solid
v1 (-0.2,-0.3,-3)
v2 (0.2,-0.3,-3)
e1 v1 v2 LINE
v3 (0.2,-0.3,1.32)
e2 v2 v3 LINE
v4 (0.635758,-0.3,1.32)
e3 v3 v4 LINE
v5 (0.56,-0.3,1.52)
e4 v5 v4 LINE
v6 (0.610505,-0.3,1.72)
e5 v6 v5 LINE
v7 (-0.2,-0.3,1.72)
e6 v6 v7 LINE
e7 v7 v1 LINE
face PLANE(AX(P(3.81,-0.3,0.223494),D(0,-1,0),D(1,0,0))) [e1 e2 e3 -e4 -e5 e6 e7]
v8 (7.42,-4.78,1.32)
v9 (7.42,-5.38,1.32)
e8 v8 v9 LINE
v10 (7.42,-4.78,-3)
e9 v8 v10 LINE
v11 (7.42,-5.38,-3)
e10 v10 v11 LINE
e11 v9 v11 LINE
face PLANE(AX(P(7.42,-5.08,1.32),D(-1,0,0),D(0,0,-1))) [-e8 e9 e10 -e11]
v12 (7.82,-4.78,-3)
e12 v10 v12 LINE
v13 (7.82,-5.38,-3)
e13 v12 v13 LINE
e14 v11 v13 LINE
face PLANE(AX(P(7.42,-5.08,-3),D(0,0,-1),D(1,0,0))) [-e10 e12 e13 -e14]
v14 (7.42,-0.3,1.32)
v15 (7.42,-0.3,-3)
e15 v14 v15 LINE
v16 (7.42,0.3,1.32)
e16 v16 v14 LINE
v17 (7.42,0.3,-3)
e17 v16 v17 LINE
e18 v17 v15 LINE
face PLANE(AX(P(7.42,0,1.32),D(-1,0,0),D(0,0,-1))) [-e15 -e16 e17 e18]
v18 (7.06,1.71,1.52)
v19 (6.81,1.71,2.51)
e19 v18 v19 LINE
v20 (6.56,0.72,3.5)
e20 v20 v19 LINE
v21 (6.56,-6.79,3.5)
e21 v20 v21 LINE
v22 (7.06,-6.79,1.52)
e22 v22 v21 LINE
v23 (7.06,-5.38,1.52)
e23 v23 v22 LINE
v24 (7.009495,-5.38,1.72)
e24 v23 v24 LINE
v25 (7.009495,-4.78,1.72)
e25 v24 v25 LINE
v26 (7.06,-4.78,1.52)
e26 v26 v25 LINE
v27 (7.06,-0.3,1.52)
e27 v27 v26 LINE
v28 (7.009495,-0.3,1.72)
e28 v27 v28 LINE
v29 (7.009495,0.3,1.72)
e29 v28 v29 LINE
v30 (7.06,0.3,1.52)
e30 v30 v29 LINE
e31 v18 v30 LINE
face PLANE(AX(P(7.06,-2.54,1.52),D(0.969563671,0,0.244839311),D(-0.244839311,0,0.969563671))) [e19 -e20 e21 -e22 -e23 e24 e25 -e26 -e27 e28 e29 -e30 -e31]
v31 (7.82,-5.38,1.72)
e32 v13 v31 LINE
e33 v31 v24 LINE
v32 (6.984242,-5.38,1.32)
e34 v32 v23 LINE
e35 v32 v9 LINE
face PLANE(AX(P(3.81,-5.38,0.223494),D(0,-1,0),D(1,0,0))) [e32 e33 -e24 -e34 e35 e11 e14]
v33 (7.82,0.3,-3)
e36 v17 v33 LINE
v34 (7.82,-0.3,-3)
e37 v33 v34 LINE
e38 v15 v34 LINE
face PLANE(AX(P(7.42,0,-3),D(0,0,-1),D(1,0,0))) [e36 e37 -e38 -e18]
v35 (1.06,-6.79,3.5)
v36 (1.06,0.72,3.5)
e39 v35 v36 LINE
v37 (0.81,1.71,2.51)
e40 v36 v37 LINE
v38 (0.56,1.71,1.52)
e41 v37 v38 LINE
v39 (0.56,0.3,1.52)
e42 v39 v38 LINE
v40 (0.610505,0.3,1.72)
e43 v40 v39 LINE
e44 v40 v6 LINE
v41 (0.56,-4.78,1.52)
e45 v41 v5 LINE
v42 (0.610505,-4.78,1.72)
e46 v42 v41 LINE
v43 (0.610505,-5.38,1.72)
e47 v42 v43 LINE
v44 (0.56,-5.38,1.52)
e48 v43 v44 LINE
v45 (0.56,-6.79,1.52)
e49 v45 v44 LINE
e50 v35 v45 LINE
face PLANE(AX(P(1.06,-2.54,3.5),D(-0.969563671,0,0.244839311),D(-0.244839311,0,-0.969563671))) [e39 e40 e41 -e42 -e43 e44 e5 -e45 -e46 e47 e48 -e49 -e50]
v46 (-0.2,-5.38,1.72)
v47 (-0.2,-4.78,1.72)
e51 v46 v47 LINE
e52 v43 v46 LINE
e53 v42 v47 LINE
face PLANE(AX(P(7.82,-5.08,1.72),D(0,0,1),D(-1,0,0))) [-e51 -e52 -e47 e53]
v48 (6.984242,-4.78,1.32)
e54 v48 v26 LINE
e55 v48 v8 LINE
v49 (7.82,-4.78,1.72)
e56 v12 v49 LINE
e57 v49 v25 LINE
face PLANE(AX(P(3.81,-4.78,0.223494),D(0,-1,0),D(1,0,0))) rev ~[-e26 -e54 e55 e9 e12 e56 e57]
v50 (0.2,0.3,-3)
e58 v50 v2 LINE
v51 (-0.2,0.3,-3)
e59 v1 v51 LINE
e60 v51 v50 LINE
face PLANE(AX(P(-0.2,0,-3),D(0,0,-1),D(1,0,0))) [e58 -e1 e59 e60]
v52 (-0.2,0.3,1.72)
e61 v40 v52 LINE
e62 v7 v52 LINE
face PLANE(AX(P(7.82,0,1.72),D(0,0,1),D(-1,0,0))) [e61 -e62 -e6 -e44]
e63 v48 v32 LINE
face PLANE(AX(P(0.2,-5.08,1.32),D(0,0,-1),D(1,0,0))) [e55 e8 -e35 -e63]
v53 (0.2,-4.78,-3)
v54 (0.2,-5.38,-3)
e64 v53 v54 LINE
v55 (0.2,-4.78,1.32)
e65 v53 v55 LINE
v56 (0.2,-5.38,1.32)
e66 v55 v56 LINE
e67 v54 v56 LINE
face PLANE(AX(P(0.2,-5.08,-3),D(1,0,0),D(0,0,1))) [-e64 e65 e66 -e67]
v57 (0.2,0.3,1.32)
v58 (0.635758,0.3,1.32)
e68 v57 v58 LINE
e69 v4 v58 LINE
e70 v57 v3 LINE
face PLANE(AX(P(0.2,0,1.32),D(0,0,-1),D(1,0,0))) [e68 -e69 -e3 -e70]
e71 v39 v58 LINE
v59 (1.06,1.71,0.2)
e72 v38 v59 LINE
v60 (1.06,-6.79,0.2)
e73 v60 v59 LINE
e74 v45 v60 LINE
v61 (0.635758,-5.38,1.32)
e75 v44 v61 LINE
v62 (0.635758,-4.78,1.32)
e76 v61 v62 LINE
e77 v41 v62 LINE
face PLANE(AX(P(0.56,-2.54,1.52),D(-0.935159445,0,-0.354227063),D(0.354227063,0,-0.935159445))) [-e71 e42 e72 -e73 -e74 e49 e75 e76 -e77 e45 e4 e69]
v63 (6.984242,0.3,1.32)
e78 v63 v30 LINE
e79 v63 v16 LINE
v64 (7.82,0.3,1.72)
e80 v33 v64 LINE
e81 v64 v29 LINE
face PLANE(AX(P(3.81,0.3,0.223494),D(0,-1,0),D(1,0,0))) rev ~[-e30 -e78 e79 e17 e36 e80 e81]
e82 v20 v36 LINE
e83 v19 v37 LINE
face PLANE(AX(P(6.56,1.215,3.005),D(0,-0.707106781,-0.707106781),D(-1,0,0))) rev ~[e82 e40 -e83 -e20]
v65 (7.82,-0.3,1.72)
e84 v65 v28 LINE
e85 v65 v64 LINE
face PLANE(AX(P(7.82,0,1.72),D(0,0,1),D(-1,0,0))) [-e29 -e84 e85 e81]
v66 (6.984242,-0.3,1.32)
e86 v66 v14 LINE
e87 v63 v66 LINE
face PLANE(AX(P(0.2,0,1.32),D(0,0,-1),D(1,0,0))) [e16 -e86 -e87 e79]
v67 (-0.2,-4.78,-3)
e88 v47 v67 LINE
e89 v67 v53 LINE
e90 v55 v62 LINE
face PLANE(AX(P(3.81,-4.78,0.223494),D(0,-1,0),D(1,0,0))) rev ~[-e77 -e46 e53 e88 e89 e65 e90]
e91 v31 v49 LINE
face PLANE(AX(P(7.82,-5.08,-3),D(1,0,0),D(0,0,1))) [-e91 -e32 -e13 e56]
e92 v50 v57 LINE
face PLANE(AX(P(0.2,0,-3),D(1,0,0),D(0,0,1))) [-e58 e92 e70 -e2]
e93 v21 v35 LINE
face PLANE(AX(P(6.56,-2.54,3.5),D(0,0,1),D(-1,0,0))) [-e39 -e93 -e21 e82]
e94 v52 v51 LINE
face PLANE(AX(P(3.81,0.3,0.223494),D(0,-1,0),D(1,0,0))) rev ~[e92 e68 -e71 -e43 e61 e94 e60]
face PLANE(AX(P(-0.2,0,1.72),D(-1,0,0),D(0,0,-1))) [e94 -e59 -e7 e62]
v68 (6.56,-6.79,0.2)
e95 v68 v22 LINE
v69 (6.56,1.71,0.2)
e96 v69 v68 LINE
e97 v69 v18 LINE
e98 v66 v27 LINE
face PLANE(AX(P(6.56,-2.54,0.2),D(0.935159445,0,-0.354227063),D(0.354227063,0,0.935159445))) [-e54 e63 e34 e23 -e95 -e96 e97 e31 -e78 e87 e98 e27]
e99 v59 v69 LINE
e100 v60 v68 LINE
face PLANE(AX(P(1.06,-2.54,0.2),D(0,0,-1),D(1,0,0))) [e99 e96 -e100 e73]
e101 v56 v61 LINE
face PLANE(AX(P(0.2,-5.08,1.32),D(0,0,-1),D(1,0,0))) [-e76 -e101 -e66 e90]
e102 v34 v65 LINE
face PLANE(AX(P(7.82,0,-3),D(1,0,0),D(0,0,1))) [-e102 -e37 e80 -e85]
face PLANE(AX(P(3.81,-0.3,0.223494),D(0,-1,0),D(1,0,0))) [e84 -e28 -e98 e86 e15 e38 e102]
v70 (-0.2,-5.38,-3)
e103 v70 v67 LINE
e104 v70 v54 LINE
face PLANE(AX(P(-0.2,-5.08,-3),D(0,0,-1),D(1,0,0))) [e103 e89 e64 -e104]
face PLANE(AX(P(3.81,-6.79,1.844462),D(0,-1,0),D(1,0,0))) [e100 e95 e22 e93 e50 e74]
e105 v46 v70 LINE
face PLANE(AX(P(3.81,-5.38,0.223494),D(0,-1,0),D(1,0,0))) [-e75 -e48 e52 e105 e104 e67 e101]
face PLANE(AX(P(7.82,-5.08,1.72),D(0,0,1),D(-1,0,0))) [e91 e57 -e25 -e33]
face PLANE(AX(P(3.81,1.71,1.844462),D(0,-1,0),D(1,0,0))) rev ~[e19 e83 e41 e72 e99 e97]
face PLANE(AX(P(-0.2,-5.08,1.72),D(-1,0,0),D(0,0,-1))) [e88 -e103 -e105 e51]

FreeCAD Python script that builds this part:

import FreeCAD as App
import Part
import Sketcher
from FreeCAD import Vector


def edges_at(feature, points):
    """Names of the edges that pass closest to the given points."""
    edges = feature.Shape.Edges
    near = lambda p: min(range(len(edges)), key=lambda i: edges[i].distToShape(Part.Vertex(*p))[0])
    return sorted({f"Edge{near(p) + 1}" for p in points})

doc = App.newDocument("Part")
body = doc.addObject("PartDesign::Body", "Body")

sketch1 = doc.addObject("Sketcher::SketchObject", "Sketch")
body.addObject(sketch1)
sketch1.AttachmentSupport = (doc.XZ_Plane, [""])
sketch1.MapMode = "FlatFace"
sketch1.AttachmentOffset = App.Placement(Vector(0, 0, 5.08), App.Rotation())
sketch1.addGeometry([
    Part.LineSegment(Vector(-0.2, -3, 0), Vector(0.2, -3, 0)),
    Part.LineSegment(Vector(0.2, -3, 0), Vector(0.2, 1.32, 0)),
    Part.LineSegment(Vector(0.2, 1.32, 0), Vector(7.42, 1.32, 0)),
    Part.LineSegment(Vector(7.42, 1.32, 0), Vector(7.42, -3, 0)),
    Part.LineSegment(Vector(7.42, -3, 0), Vector(7.82, -3, 0)),
    Part.LineSegment(Vector(7.82, -3, 0), Vector(7.82, 1.72, 0)),
    Part.LineSegment(Vector(7.82, 1.72, 0), Vector(-0.2, 1.72, 0)),
    Part.LineSegment(Vector(-0.2, 1.72, 0), Vector(-0.2, -3, 0)),
], False)
sketch1.addConstraint([
    Sketcher.Constraint("Coincident", 0, 2, 1, 1),
    Sketcher.Constraint("Coincident", 1, 2, 2, 1),
    Sketcher.Constraint("Coincident", 2, 2, 3, 1),
    Sketcher.Constraint("Coincident", 3, 2, 4, 1),
    Sketcher.Constraint("Coincident", 4, 2, 5, 1),
    Sketcher.Constraint("Coincident", 5, 2, 6, 1),
    Sketcher.Constraint("Coincident", 6, 2, 7, 1),
    Sketcher.Constraint("Coincident", 7, 2, 0, 1),
    Sketcher.Constraint("Horizontal", 0),
    Sketcher.Constraint("Vertical", 1),
    Sketcher.Constraint("Horizontal", 2),
    Sketcher.Constraint("Vertical", 3),
    Sketcher.Constraint("Horizontal", 4),
    Sketcher.Constraint("Vertical", 5),
    Sketcher.Constraint("Horizontal", 6),
    Sketcher.Constraint("Vertical", 7),
    Sketcher.Constraint("Horizontal", 0, 2, 3, 2),
    Sketcher.Constraint("Equal", 0, 4),
    Sketcher.Constraint("DistanceX", 0, 1, 0, 2, 0.4),
    Sketcher.Constraint("DistanceY", 0, 2, -1, 1, 3.0),
    Sketcher.Constraint("DistanceX", 2, 1, 2, 2, 7.22),
    Sketcher.Constraint("DistanceY", 1, 1, 1, 2, 4.32),
    Sketcher.Constraint("DistanceY", 5, 1, 5, 2, 4.72),
    Sketcher.Constraint("DistanceX", -1, 1, 0, 2, 0.2),
])
pad1 = doc.addObject("PartDesign::Pad", "Pad")
body.addObject(pad1)
pad1.Profile = sketch1
pad1.Length = 0.6
pad1.Midplane = True
body2 = doc.addObject("PartDesign::Body", "Body001")

sketch2 = doc.addObject("Sketcher::SketchObject", "Sketch001")
body2.addObject(sketch2)
sketch2.AttachmentSupport = (doc.getObject("XZ_Plane001"), [""])
sketch2.MapMode = "FlatFace"
sketch2.AttachmentOffset = App.Placement(Vector(0, 0, 2.54), App.Rotation())
sketch2.addGeometry([
    Part.LineSegment(Vector(1.1, 0.2, 0), Vector(6.6, 0.2, 0)),
    Part.LineSegment(Vector(6.6, 0.2, 0), Vector(7.1, 1.5, 0)),
    Part.LineSegment(Vector(7.1, 1.5, 0), Vector(6.6, 3.5, 0)),
    Part.LineSegment(Vector(6.6, 3.5, 0), Vector(1.1, 3.5, 0)),
    Part.LineSegment(Vector(1.1, 3.5, 0), Vector(0.6, 1.5, 0)),
    Part.LineSegment(Vector(0.6, 1.5, 0), Vector(1.1, 0.2, 0)),
], False)
sketch2.addConstraint([
    Sketcher.Constraint("Coincident", 0, 2, 1, 1),
    Sketcher.Constraint("Coincident", 1, 2, 2, 1),
    Sketcher.Constraint("Coincident", 2, 2, 3, 1),
    Sketcher.Constraint("Coincident", 3, 2, 4, 1),
    Sketcher.Constraint("Coincident", 4, 2, 5, 1),
    Sketcher.Constraint("Coincident", 5, 2, 0, 1),
    Sketcher.Constraint("Horizontal", 0),
    Sketcher.Constraint("Horizontal", 3),
    Sketcher.Constraint("Horizontal", 1, 2, 4, 2),
    Sketcher.Constraint("Vertical", 0, 2, 2, 2),
    Sketcher.Constraint("Vertical", 3, 2, 5, 2),
    Sketcher.Constraint("Equal", 2, 4),
    Sketcher.Constraint("DistanceX", 0, 1, 0, 2, 5.5),
    Sketcher.Constraint("DistanceX", 3, 2, 1, 2, 6.0),
    Sketcher.Constraint("DistanceY", -1, 1, 0, 2, 0.2),
    Sketcher.Constraint("DistanceY", -1, 1, 2, 2, 3.5),
    Sketcher.Constraint("DistanceX", -1, 1, 0, 2, 6.56),
    Sketcher.Constraint("DistanceY", -1, 1, 1, 2, 1.52),
])
pad2 = doc.addObject("PartDesign::Pad", "Pad001")
body2.addObject(pad2)
pad2.Profile = sketch2
pad2.Length = 8.5
pad2.Midplane = True
doc.recompute()

chamfer = doc.addObject("PartDesign::Chamfer", "Chamfer")
body2.addObject(chamfer)
chamfer.Base = (pad2, edges_at(pad2, [(3.81, 1.71, 3.5)]))
chamfer.Size = 0.99
body3 = doc.addObject("PartDesign::Body", "Body002")
body3.AllowCompound = True

sketch3 = doc.addObject("Sketcher::SketchObject", "Sketch002")
body3.addObject(sketch3)
sketch3.AttachmentSupport = (doc.getObject("XZ_Plane002"), [""])
sketch3.MapMode = "FlatFace"
sketch3.addGeometry([
    Part.LineSegment(Vector(-0.2, -3, 0), Vector(0.2, -3, 0)),
    Part.LineSegment(Vector(0.2, -3, 0), Vector(0.2, 1.32, 0)),
    Part.LineSegment(Vector(0.2, 1.32, 0), Vector(7.42, 1.32, 0)),
    Part.LineSegment(Vector(7.42, 1.32, 0), Vector(7.42, -3, 0)),
    Part.LineSegment(Vector(7.42, -3, 0), Vector(7.82, -3, 0)),
    Part.LineSegment(Vector(7.82, -3, 0), Vector(7.82, 1.72, 0)),
    Part.LineSegment(Vector(7.82, 1.72, 0), Vector(-0.2, 1.72, 0)),
    Part.LineSegment(Vector(-0.2, 1.72, 0), Vector(-0.2, -3, 0)),
], False)
sketch3.addConstraint([
    Sketcher.Constraint("Coincident", 0, 2, 1, 1),
    Sketcher.Constraint("Coincident", 1, 2, 2, 1),
    Sketcher.Constraint("Coincident", 2, 2, 3, 1),
    Sketcher.Constraint("Coincident", 3, 2, 4, 1),
    Sketcher.Constraint("Coincident", 4, 2, 5, 1),
    Sketcher.Constraint("Coincident", 5, 2, 6, 1),
    Sketcher.Constraint("Coincident", 6, 2, 7, 1),
    Sketcher.Constraint("Coincident", 7, 2, 0, 1),
    Sketcher.Constraint("Horizontal", 0),
    Sketcher.Constraint("Vertical", 1),
    Sketcher.Constraint("Horizontal", 2),
    Sketcher.Constraint("Vertical", 3),
    Sketcher.Constraint("Horizontal", 4),
    Sketcher.Constraint("Vertical", 5),
    Sketcher.Constraint("Horizontal", 6),
    Sketcher.Constraint("Vertical", 7),
    Sketcher.Constraint("Horizontal", 0, 2, 3, 2),
    Sketcher.Constraint("Equal", 0, 4),
    Sketcher.Constraint("DistanceX", 0, 1, 0, 2, 0.4),
    Sketcher.Constraint("DistanceY", 0, 2, -1, 1, 3.0),
    Sketcher.Constraint("DistanceX", 2, 1, 2, 2, 7.22),
    Sketcher.Constraint("DistanceY", 1, 1, 1, 2, 4.32),
    Sketcher.Constraint("DistanceY", 5, 1, 5, 2, 4.72),
    Sketcher.Constraint("DistanceX", -1, 1, 0, 2, 0.2),
])
pad3 = doc.addObject("PartDesign::Pad", "Pad002")
body3.addObject(pad3)
pad3.Profile = sketch3
pad3.Length = 0.6
pad3.Midplane = True
doc.recompute()

boolean = doc.addObject("PartDesign::Boolean", "Boolean")
body3.addObject(boolean)
boolean.Type = "Fuse"
boolean.addObjects([body])
doc.recompute()

boolean2 = doc.addObject("PartDesign::Boolean", "Boolean001")
body3.addObject(boolean2)
boolean2.Type = "Fuse"
boolean2.addObjects([body2])

doc.recompute()
